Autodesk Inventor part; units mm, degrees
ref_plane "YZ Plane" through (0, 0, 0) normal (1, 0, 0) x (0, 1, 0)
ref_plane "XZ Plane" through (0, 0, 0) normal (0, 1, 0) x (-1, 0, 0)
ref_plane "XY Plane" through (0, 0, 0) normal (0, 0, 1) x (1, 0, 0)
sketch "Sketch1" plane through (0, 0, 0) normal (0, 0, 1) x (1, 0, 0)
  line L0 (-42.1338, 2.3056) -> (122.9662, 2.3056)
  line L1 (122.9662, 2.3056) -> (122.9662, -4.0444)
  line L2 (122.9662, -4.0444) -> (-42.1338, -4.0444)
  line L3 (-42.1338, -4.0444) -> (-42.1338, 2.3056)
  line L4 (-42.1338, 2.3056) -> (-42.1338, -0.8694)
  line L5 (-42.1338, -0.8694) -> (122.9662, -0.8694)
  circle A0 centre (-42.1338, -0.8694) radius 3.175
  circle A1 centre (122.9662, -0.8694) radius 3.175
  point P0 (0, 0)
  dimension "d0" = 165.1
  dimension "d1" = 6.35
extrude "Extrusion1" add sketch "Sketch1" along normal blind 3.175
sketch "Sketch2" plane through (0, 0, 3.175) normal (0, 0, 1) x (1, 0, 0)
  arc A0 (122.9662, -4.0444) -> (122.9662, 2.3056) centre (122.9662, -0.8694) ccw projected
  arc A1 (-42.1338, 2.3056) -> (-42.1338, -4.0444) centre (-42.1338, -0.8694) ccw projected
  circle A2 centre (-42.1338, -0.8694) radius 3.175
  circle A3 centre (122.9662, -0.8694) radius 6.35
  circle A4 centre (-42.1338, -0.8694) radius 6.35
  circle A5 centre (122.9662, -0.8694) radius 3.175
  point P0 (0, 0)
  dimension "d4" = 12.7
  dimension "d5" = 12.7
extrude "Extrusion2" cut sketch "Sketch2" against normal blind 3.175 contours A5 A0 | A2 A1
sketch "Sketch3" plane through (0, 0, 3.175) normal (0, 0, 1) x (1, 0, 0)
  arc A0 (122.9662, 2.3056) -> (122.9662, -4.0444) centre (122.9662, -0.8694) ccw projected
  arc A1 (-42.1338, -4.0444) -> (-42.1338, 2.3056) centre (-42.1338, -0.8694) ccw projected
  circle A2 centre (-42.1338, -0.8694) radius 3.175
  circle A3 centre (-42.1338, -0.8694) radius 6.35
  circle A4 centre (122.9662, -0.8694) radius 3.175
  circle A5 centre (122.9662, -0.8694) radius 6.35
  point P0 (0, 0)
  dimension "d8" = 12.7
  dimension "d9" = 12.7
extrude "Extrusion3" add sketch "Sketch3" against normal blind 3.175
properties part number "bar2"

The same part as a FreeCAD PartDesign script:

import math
import FreeCAD as App
import Part
import Sketcher
from FreeCAD import Vector
Q = App.Units.Quantity

doc = App.newDocument("Part")
body = doc.addObject("PartDesign::Body", "Body")

# Sketch on XY plane
sketch1 = body.newObject("Sketcher::SketchObject", "Sketch")
sketch1.AttachmentSupport = (doc.getObject("XY_Plane"), [""])
sketch1.MapMode = "FlatFace"
sketch1.addGeometry(Part.LineSegment(Vector(122.9662, 2.3056, 0), Vector(-42.1338, 2.3056, 0)), False)
sketch1.addGeometry(Part.ArcOfCircle(Part.Circle(Vector(-42.1338, -0.8694, 0), Vector(0, 0, 1), 3.175), math.radians(90), math.radians(270)), False)
sketch1.addGeometry(Part.LineSegment(Vector(-42.1338, -4.0444, 0), Vector(122.9662, -4.0444, 0)), False)
sketch1.addGeometry(Part.ArcOfCircle(Part.Circle(Vector(122.9662, -0.8694, 0), Vector(0, 0, 1), 3.175), math.radians(-90), math.radians(90)), False)
sketch1.addConstraint(Sketcher.Constraint("Tangent", 0, 2, 1, 1))
sketch1.addConstraint(Sketcher.Constraint("Tangent", 1, 2, 2, 1))
sketch1.addConstraint(Sketcher.Constraint("Tangent", 2, 2, 3, 1))
sketch1.addConstraint(Sketcher.Constraint("Tangent", 3, 2, 0, 1))
sketch1.addConstraint(Sketcher.Constraint("Horizontal", 0))
sketch1.addConstraint(Sketcher.Constraint("Horizontal", 2))
sketch1.addConstraint(Sketcher.Constraint("DistanceX", 0, 2, 0, 1, Q("6.5 in")))
sketch1.addConstraint(Sketcher.Constraint("Radius", 1, Q("0.125 in")))
sketch1.addConstraint(Sketcher.Constraint("DistanceX", 1, 3, -1, 1, Q("1.6588 in")))
sketch1.addConstraint(Sketcher.Constraint("DistanceY", 1, 3, -1, 1, 0.8694))
pad1 = body.newObject("PartDesign::Pad", "Pad")
pad1.Profile = sketch1
pad1.Length = Q("0.125 in")

# Sketch on XY plane
sketch2 = body.newObject("Sketcher::SketchObject", "Sketch001")
sketch2.AttachmentSupport = (doc.getObject("XY_Plane"), [""])
sketch2.MapMode = "FlatFace"
sketch2.AttachmentOffset = App.Placement(Vector(0, 0, 0.125 * 25.4), App.Rotation())
sketch2.addGeometry(Part.Circle(Vector(122.9662, -0.8694, 0), Vector(0, 0, 1), 3.175), False)
sketch2.addGeometry(Part.Circle(Vector(-42.1338, -0.8694, 0), Vector(0, 0, 1), 3.175), False)
sketch2.addConstraint(Sketcher.Constraint("Equal", 0, 1))
sketch2.addConstraint(Sketcher.Constraint("Horizontal", 0, 3, 1, 3))
sketch2.addConstraint(Sketcher.Constraint("Diameter", 0, Q("0.25 in")))
sketch2.addConstraint(Sketcher.Constraint("DistanceX", 1, 3, 0, 3, Q("6.5 in")))
sketch2.addConstraint(Sketcher.Constraint("DistanceX", -1, 1, 0, 3, Q("4.8412 in")))
sketch2.addConstraint(Sketcher.Constraint("DistanceY", 0, 3, -1, 1, 0.8694))
pocket1 = body.newObject("PartDesign::Pocket", "Pocket")
pocket1.Profile = sketch2
pocket1.Length = Q("0.125 in")

# Sketch on XY plane
sketch3 = body.newObject("Sketcher::SketchObject", "Sketch002")
sketch3.AttachmentSupport = (doc.getObject("XY_Plane"), [""])
sketch3.MapMode = "FlatFace"
sketch3.AttachmentOffset = App.Placement(Vector(0, 0, 0.125 * 25.4), App.Rotation())
sketch3.addGeometry(Part.Circle(Vector(-42.1338, -0.8694, 0), Vector(0, 0, 1), 6.35), False)
sketch3.addGeometry(Part.Circle(Vector(-42.1338, -0.8694, 0), Vector(0, 0, 1), 3.175), False)
sketch3.addGeometry(Part.Circle(Vector(122.9662, -0.8694, 0), Vector(0, 0, 1), 6.35), False)
sketch3.addGeometry(Part.Circle(Vector(122.9662, -0.8694, 0), Vector(0, 0, 1), 3.175), False)
sketch3.addConstraint(Sketcher.Constraint("Coincident", 1, 3, 0, 3))
sketch3.addConstraint(Sketcher.Constraint("Coincident", 3, 3, 2, 3))
sketch3.addConstraint(Sketcher.Constraint("Equal", 0, 2))
sketch3.addConstraint(Sketcher.Constraint("Equal", 1, 3))
sketch3.addConstraint(Sketcher.Constraint("Horizontal", 1, 3, 2, 3))
sketch3.addConstraint(Sketcher.Constraint("Diameter", 0, Q("0.5 in")))
sketch3.addConstraint(Sketcher.Constraint("Diameter", 1, Q("0.25 in")))
sketch3.addConstraint(Sketcher.Constraint("DistanceX", 0, 3, 2, 3, Q("6.5 in")))
sketch3.addConstraint(Sketcher.Constraint("DistanceX", 0, 3, -1, 1, Q("1.6588 in")))
sketch3.addConstraint(Sketcher.Constraint("DistanceY", 0, 3, -1, 1, 0.8694))
pad2 = body.newObject("PartDesign::Pad", "Pad001")
pad2.Profile = sketch3
pad2.Length = Q("0.125 in")
pad2.Reversed = True

doc.recompute()
